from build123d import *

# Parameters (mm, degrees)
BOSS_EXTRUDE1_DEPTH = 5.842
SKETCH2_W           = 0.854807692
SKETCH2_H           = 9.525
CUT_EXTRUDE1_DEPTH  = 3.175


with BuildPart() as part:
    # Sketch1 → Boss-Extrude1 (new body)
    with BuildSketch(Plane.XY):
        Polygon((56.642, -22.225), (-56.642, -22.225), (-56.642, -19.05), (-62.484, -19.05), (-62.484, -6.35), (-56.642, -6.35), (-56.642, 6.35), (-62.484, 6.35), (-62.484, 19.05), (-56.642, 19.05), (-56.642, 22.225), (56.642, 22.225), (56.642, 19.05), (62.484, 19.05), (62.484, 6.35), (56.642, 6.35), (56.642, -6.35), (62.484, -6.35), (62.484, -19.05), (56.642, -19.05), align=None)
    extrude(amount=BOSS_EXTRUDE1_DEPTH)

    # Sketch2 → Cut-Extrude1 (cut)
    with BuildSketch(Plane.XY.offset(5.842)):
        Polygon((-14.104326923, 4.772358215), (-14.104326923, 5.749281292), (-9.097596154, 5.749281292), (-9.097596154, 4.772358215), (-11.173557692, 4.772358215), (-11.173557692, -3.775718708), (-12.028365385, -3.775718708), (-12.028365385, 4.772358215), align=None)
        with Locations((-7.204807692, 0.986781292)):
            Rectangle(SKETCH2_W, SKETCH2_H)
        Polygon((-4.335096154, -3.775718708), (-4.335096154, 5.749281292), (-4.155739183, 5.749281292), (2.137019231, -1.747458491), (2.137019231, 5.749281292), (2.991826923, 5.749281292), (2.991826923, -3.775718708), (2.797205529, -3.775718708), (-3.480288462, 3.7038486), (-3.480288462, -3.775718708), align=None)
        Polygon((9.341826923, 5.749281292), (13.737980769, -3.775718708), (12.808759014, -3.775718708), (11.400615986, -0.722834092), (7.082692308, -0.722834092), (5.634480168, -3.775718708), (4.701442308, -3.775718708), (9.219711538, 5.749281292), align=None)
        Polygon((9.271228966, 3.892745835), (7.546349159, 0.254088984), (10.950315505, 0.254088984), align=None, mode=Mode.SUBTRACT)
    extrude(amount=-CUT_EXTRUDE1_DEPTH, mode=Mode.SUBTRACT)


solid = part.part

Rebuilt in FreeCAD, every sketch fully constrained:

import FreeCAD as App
import Part
import Sketcher
Q = App.Units.Quantity

doc = App.newDocument("Part")
body = doc.addObject("PartDesign::Body", "Body")

sketch1 = body.newObject("Sketcher::SketchObject", "Sketch")
sketch1.AttachmentSupport = (doc.getObject("XY_Plane"), [""])
sketch1.MapMode = "FlatFace"
sketch1.addGeometry([
    Part.LineSegment(App.Vector(-56.6, -22.2, 0), App.Vector(56.6, -22.2, 0)),
    Part.LineSegment(App.Vector(56.6, -22.2, 0), App.Vector(56.6, -19.1, 0)),
    Part.LineSegment(App.Vector(56.6, -19.1, 0), App.Vector(62.5, -19.1, 0)),
    Part.LineSegment(App.Vector(62.5, -19.1, 0), App.Vector(62.5, -6.3, 0)),
    Part.LineSegment(App.Vector(62.5, -6.3, 0), App.Vector(56.6, -6.3, 0)),
    Part.LineSegment(App.Vector(56.6, -6.3, 0), App.Vector(56.6, 6.3, 0)),
    Part.LineSegment(App.Vector(56.6, 6.3, 0), App.Vector(62.5, 6.3, 0)),
    Part.LineSegment(App.Vector(62.5, 6.3, 0), App.Vector(62.5, 19.1, 0)),
    Part.LineSegment(App.Vector(62.5, 19.1, 0), App.Vector(56.6, 19.1, 0)),
    Part.LineSegment(App.Vector(56.6, 19.1, 0), App.Vector(56.6, 22.2, 0)),
    Part.LineSegment(App.Vector(56.6, 22.2, 0), App.Vector(-56.6, 22.2, 0)),
    Part.LineSegment(App.Vector(-56.6, 22.2, 0), App.Vector(-56.6, 19.1, 0)),
    Part.LineSegment(App.Vector(-56.6, 19.1, 0), App.Vector(-62.5, 19.1, 0)),
    Part.LineSegment(App.Vector(-62.5, 19.1, 0), App.Vector(-62.5, 6.3, 0)),
    Part.LineSegment(App.Vector(-62.5, 6.3, 0), App.Vector(-56.6, 6.3, 0)),
    Part.LineSegment(App.Vector(-56.6, 6.3, 0), App.Vector(-56.6, -6.3, 0)),
    Part.LineSegment(App.Vector(-56.6, -6.3, 0), App.Vector(-62.5, -6.3, 0)),
    Part.LineSegment(App.Vector(-62.5, -6.3, 0), App.Vector(-62.5, -19.1, 0)),
    Part.LineSegment(App.Vector(-62.5, -19.1, 0), App.Vector(-56.6, -19.1, 0)),
    Part.LineSegment(App.Vector(-56.6, -19.1, 0), App.Vector(-56.6, -22.2, 0)),
], False)
sketch1.addConstraint([
    Sketcher.Constraint("Coincident", 0, 2, 1, 1),
    Sketcher.Constraint("Coincident", 1, 2, 2, 1),
    Sketcher.Constraint("Coincident", 2, 2, 3, 1),
    Sketcher.Constraint("Coincident", 3, 2, 4, 1),
    Sketcher.Constraint("Coincident", 4, 2, 5, 1),
    Sketcher.Constraint("Coincident", 5, 2, 6, 1),
    Sketcher.Constraint("Coincident", 6, 2, 7, 1),
    Sketcher.Constraint("Coincident", 7, 2, 8, 1),
    Sketcher.Constraint("Coincident", 8, 2, 9, 1),
    Sketcher.Constraint("Coincident", 9, 2, 10, 1),
    Sketcher.Constraint("Coincident", 10, 2, 11, 1),
    Sketcher.Constraint("Coincident", 11, 2, 12, 1),
    Sketcher.Constraint("Coincident", 12, 2, 13, 1),
    Sketcher.Constraint("Coincident", 13, 2, 14, 1),
    Sketcher.Constraint("Coincident", 14, 2, 15, 1),
    Sketcher.Constraint("Coincident", 15, 2, 16, 1),
    Sketcher.Constraint("Coincident", 16, 2, 17, 1),
    Sketcher.Constraint("Coincident", 17, 2, 18, 1),
    Sketcher.Constraint("Coincident", 18, 2, 19, 1),
    Sketcher.Constraint("Coincident", 19, 2, 0, 1),
    Sketcher.Constraint("Horizontal", 0),
    Sketcher.Constraint("Vertical", 1),
    Sketcher.Constraint("Horizontal", 2),
    Sketcher.Constraint("Vertical", 3),
    Sketcher.Constraint("Horizontal", 4),
    Sketcher.Constraint("Vertical", 5),
    Sketcher.Constraint("Horizontal", 6),
    Sketcher.Constraint("Vertical", 7),
    Sketcher.Constraint("Horizontal", 8),
    Sketcher.Constraint("Vertical", 9),
    Sketcher.Constraint("Horizontal", 10),
    Sketcher.Constraint("Vertical", 11),
    Sketcher.Constraint("Horizontal", 12),
    Sketcher.Constraint("Vertical", 13),
    Sketcher.Constraint("Horizontal", 14),
    Sketcher.Constraint("Vertical", 15),
    Sketcher.Constraint("Horizontal", 16),
    Sketcher.Constraint("Vertical", 17),
    Sketcher.Constraint("Horizontal", 18),
    Sketcher.Constraint("Vertical", 19),
    Sketcher.Constraint("Symmetric", 0, 2, 10, 2, -1, 1),
    Sketcher.Constraint("Symmetric", 2, 2, 12, 2, -1, 1),
    Sketcher.Constraint("Symmetric", 4, 2, 14, 2, -1, 1),
    Sketcher.Constraint("Symmetric", 6, 2, 16, 2, -1, 1),
    Sketcher.Constraint("Symmetric", 8, 2, 18, 2, -1, 1),
    Sketcher.Constraint("Symmetric", 8, 2, 11, 2, -2),
    Sketcher.Constraint("Symmetric", 6, 2, 13, 2, -2),
    Sketcher.Constraint("Vertical", 1, 2, 4, 2),
    Sketcher.Constraint("Equal", 3, 5),
    Sketcher.Constraint("DistanceY", 3, 1, 3, 2, Q("0.5 in")),
    Sketcher.Constraint("DistanceX", 0, 1, 0, 2, Q("4.46 in")),
    Sketcher.Constraint("DistanceX", 2, 1, 2, 2, Q("0.23 in")),
    Sketcher.Constraint("DistanceY", 1, 1, 1, 2, Q("0.125 in")),
])
pad1 = body.newObject("PartDesign::Pad", "Pad")
pad1.Profile = sketch1
pad1.Length = Q("0.23 in")

sketch2 = body.newObject("Sketcher::SketchObject", "Sketch001")
sketch2.AttachmentSupport = (doc.getObject("XY_Plane"), [""])
sketch2.MapMode = "FlatFace"
sketch2.AttachmentOffset = App.Placement(App.Vector(0, 0, 0.23 * 25.4), App.Rotation())
sketch2.addGeometry([
    Part.LineSegment(App.Vector(-14.1, 5.75, 0), App.Vector(-14.1, 4.77, 0)),
    Part.LineSegment(App.Vector(-14.1, 4.77, 0), App.Vector(-12.03, 4.77, 0)),
    Part.LineSegment(App.Vector(-12.03, 4.77, 0), App.Vector(-12.03, -3.78, 0)),
    Part.LineSegment(App.Vector(-12.03, -3.78, 0), App.Vector(-11.17, -3.78, 0)),
    Part.LineSegment(App.Vector(-11.17, -3.78, 0), App.Vector(-11.17, 4.77, 0)),
    Part.LineSegment(App.Vector(-11.17, 4.77, 0), App.Vector(-9.1, 4.77, 0)),
    Part.LineSegment(App.Vector(-9.1, 4.77, 0), App.Vector(-9.1, 5.75, 0)),
    Part.LineSegment(App.Vector(-9.1, 5.75, 0), App.Vector(-14.1, 5.75, 0)),
    Part.LineSegment(App.Vector(-7.63, 5.75, 0), App.Vector(-7.63, -3.78, 0)),
    Part.LineSegment(App.Vector(-7.63, -3.78, 0), App.Vector(-6.78, -3.78, 0)),
    Part.LineSegment(App.Vector(-6.78, -3.78, 0), App.Vector(-6.78, 5.75, 0)),
    Part.LineSegment(App.Vector(-6.78, 5.75, 0), App.Vector(-7.63, 5.75, 0)),
    Part.LineSegment(App.Vector(-4.34, 5.75, 0), App.Vector(-4.34, -3.78, 0)),
    Part.LineSegment(App.Vector(-4.34, -3.78, 0), App.Vector(-3.48, -3.78, 0)),
    Part.LineSegment(App.Vector(-3.48, -3.78, 0), App.Vector(-3.48, 3.7, 0)),
    Part.LineSegment(App.Vector(-3.48, 3.7, 0), App.Vector(2.8, -3.78, 0)),
    Part.LineSegment(App.Vector(2.8, -3.78, 0), App.Vector(2.99, -3.78, 0)),
    Part.LineSegment(App.Vector(2.99, -3.78, 0), App.Vector(2.99, 5.75, 0)),
    Part.LineSegment(App.Vector(2.99, 5.75, 0), App.Vector(2.14, 5.75, 0)),
    Part.LineSegment(App.Vector(2.14, 5.75, 0), App.Vector(2.14, -1.75, 0)),
    Part.LineSegment(App.Vector(2.14, -1.75, 0), App.Vector(-4.16, 5.75, 0)),
    Part.LineSegment(App.Vector(-4.16, 5.75, 0), App.Vector(-4.34, 5.75, 0)),
    Part.LineSegment(App.Vector(13.74, -3.78, 0), App.Vector(9.34, 5.75, 0)),
    Part.LineSegment(App.Vector(9.34, 5.75, 0), App.Vector(9.22, 5.75, 0)),
    Part.LineSegment(App.Vector(9.22, 5.75, 0), App.Vector(4.7, -3.78, 0)),
    Part.LineSegment(App.Vector(4.7, -3.78, 0), App.Vector(5.63, -3.78, 0)),
    Part.LineSegment(App.Vector(5.63, -3.78, 0), App.Vector(7.08, -0.72, 0)),
    Part.LineSegment(App.Vector(7.08, -0.72, 0), App.Vector(11.4, -0.72, 0)),
    Part.LineSegment(App.Vector(11.4, -0.72, 0), App.Vector(12.81, -3.78, 0)),
    Part.LineSegment(App.Vector(12.81, -3.78, 0), App.Vector(13.74, -3.78, 0)),
    Part.LineSegment(App.Vector(9.27, 3.89, 0), App.Vector(10.95, 0.25, 0)),
    Part.LineSegment(App.Vector(10.95, 0.25, 0), App.Vector(7.55, 0.25, 0)),
    Part.LineSegment(App.Vector(7.55, 0.25, 0), App.Vector(9.27, 3.89, 0)),
], False)
sketch2.addConstraint([
    Sketcher.Constraint("Coincident", 0, 2, 1, 1),
    Sketcher.Constraint("Coincident", 1, 2, 2, 1),
    Sketcher.Constraint("Coincident", 2, 2, 3, 1),
    Sketcher.Constraint("Coincident", 3, 2, 4, 1),
    Sketcher.Constraint("Coincident", 4, 2, 5, 1),
    Sketcher.Constraint("Coincident", 5, 2, 6, 1),
    Sketcher.Constraint("Coincident", 6, 2, 7, 1),
    Sketcher.Constraint("Coincident", 7, 2, 0, 1),
    Sketcher.Constraint("Coincident", 8, 2, 9, 1),
    Sketcher.Constraint("Coincident", 9, 2, 10, 1),
    Sketcher.Constraint("Coincident", 10, 2, 11, 1),
    Sketcher.Constraint("Coincident", 11, 2, 8, 1),
    Sketcher.Constraint("Coincident", 12, 2, 13, 1),
    Sketcher.Constraint("Coincident", 13, 2, 14, 1),
    Sketcher.Constraint("Coincident", 14, 2, 15, 1),
    Sketcher.Constraint("Coincident", 15, 2, 16, 1),
    Sketcher.Constraint("Coincident", 16, 2, 17, 1),
    Sketcher.Constraint("Coincident", 17, 2, 18, 1),
    Sketcher.Constraint("Coincident", 18, 2, 19, 1),
    Sketcher.Constraint("Coincident", 19, 2, 20, 1),
    Sketcher.Constraint("Coincident", 20, 2, 21, 1),
    Sketcher.Constraint("Coincident", 21, 2, 12, 1),
    Sketcher.Constraint("Coincident", 22, 2, 23, 1),
    Sketcher.Constraint("Coincident", 23, 2, 24, 1),
    Sketcher.Constraint("Coincident", 24, 2, 25, 1),
    Sketcher.Constraint("Coincident", 25, 2, 26, 1),
    Sketcher.Constraint("Coincident", 26, 2, 27, 1),
    Sketcher.Constraint("Coincident", 27, 2, 28, 1),
    Sketcher.Constraint("Coincident", 28, 2, 29, 1),
    Sketcher.Constraint("Coincident", 29, 2, 22, 1),
    Sketcher.Constraint("Coincident", 30, 2, 31, 1),
    Sketcher.Constraint("Coincident", 31, 2, 32, 1),
    Sketcher.Constraint("Coincident", 32, 2, 30, 1),
    Sketcher.Constraint("Vertical", 0),
    Sketcher.Constraint("Horizontal", 1),
    Sketcher.Constraint("Vertical", 2),
    Sketcher.Constraint("Horizontal", 3),
    Sketcher.Constraint("Vertical", 4),
    Sketcher.Constraint("Horizontal", 5),
    Sketcher.Constraint("Vertical", 6),
    Sketcher.Constraint("Horizontal", 7),
    Sketcher.Constraint("Vertical", 8),
    Sketcher.Constraint("Horizontal", 9),
    Sketcher.Constraint("Vertical", 10),
    Sketcher.Constraint("Horizontal", 11),
    Sketcher.Constraint("Vertical", 12),
    Sketcher.Constraint("Horizontal", 13),
    Sketcher.Constraint("Vertical", 14),
    Sketcher.Constraint("Horizontal", 16),
    Sketcher.Constraint("Vertical", 17),
    Sketcher.Constraint("Horizontal", 18),
    Sketcher.Constraint("Vertical", 19),
    Sketcher.Constraint("Horizontal", 21),
    Sketcher.Constraint("Horizontal", 23),
    Sketcher.Constraint("Horizontal", 25),
    Sketcher.Constraint("Horizontal", 27),
    Sketcher.Constraint("Horizontal", 29),
    Sketcher.Constraint("Horizontal", 31),
    Sketcher.Constraint("Horizontal", 1, 2, 4, 2),
    Sketcher.Constraint("Horizontal", 3, 2, 8, 2),
    Sketcher.Constraint("Horizontal", 7, 2, 10, 2),
    Sketcher.Constraint("Horizontal", 9, 2, 12, 2),
    Sketcher.Constraint("Horizontal", 13, 2, 15, 2),
    Sketcher.Constraint("Horizontal", 11, 2, 17, 2),
    Sketcher.Constraint("Horizontal", 18, 2, 20, 2),
    Sketcher.Constraint("Horizontal", 21, 2, 22, 2),
    Sketcher.Constraint("Horizontal", 16, 2, 24, 2),
    Sketcher.Constraint("Horizontal", 25, 2, 28, 2),
    Sketcher.Constraint("Equal", 1, 5),
    Sketcher.Constraint("Equal", 3, 9),
    Sketcher.Constraint("Equal", 11, 13),
    Sketcher.Constraint("Equal", 13, 18),
    Sketcher.Constraint("DistanceY", 8, 2, 8, 1, Q("0.375 in")),
    Sketcher.Constraint("DistanceX", 17, 2, 22, 2, Q("0.25 in")),
    Sketcher.Constraint("DistanceX", 5, 2, 12, 2, Q("0.1875 in")),
    Sketcher.Constraint("DistanceX", 24, 2, 26, 2, Q("0.09375 in")),
    Sketcher.Constraint("DistanceX", 1, 1, 1, 2, Q("2.075962 mm")),
    Sketcher.Constraint("DistanceX", 7, 2, 7, 1, Q("5.006731 mm")),
    Sketcher.Constraint("DistanceX", 16, 1, 16, 2, Q("0.194621 mm")),
    Sketcher.Constraint("DistanceX", 29, 1, 29, 2, Q("0.929222 mm")),
    Sketcher.Constraint("DistanceY", 19, 2, 19, 1, Q("7.49674 mm")),
    Sketcher.Constraint("DistanceX", 12, 2, 15, 2, Q("7.132302 mm")),
    Sketcher.Constraint("DistanceX", 25, 2, 29, 2, Q("8.103501 mm")),
    Sketcher.Constraint("DistanceX", 30, 2, 27, 2, Q("0.4503 mm")),
    Sketcher.Constraint("Distance", 28, Q("3.361989 mm")),
    Sketcher.Constraint("Distance", 32, Q("4.02679 mm")),
    Sketcher.Constraint("DistanceX", 21, 2, 21, 1, Q("0.179357 mm")),
    Sketcher.Constraint("DistanceX", 23, 2, 23, 1, Q("0.122115 mm")),
    Sketcher.Constraint("DistanceX", 25, 1, 25, 2, Q("0.933038 mm")),
    Sketcher.Constraint("DistanceX", 27, 1, 27, 2, Q("4.317924 mm")),
    Sketcher.Constraint("DistanceX", 31, 2, 31, 1, Q("3.403966 mm")),
    Sketcher.Constraint("DistanceY", 0, 2, 0, 1, Q("0.976923 mm")),
    Sketcher.Constraint("DistanceY", 14, 1, 14, 2, Q("7.479567 mm")),
    Sketcher.Constraint("DistanceY", -1, 1, 0, 2, Q("4.772358 mm")),
    Sketcher.Constraint("DistanceX", 8, 2, -1, 1, Q("7.632212 mm")),
    Sketcher.Constraint("DistanceX", 13, 2, -1, 1, Q("3.480288 mm")),
    Sketcher.Constraint("DistanceX", -1, 1, 25, 2, Q("5.63448 mm")),
    Sketcher.Constraint("DistanceY", -1, 1, 30, 2, Q("0.254089 mm")),
    Sketcher.Constraint("DistanceX", -1, 1, 32, 2, Q("9.271229 mm")),
])
pocket1 = body.newObject("PartDesign::Pocket", "Pocket")
pocket1.Profile = sketch2
pocket1.Length = Q("0.125 in")

doc.recompute()
